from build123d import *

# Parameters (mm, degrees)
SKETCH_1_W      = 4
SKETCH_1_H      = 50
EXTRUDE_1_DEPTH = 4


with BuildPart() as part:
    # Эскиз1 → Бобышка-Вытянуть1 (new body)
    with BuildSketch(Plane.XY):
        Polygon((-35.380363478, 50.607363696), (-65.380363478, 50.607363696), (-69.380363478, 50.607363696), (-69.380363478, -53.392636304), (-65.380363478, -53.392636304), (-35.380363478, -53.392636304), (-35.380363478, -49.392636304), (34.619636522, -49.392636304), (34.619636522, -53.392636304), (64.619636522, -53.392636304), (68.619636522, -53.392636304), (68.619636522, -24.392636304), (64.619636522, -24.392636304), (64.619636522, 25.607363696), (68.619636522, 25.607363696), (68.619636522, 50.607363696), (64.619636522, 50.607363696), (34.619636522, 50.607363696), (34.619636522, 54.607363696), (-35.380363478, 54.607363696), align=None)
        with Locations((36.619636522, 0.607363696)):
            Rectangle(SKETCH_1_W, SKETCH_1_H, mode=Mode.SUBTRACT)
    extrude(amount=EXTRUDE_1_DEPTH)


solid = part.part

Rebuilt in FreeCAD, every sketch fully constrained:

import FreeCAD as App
import Part
import Sketcher


def add_polygon(sketch, points):
    """Adds a closed chain of lines whose ends are joined by coincident constraints."""
    first, n = sketch.GeometryCount, len(points)
    for a, b in zip(points, points[1:] + points[:1]):
        sketch.addGeometry(Part.LineSegment(App.Vector(*a, 0), App.Vector(*b, 0)), False)
    for i in range(n):
        sketch.addConstraint(Sketcher.Constraint("Coincident", first + i, 2, first + (i + 1) % n, 1))

doc = App.newDocument("Part")
params = doc.addObject("Spreadsheet::Sheet", "Params")
for row, (alias, value) in enumerate([
    ("sketch1_width", "34 mm"),
    ("sketch1_width2", "70 mm"),
    ("sketch1_width3", "4 mm"),
    ("sketch1_height", "104 mm"),
    ("sketch1_height2", "29 mm"),
    ("pad1_length", "4 mm"),
], start=1):
    params.set(f"A{row}", alias)
    params.set(f"B{row}", "=" + value)
    params.setAlias(f"B{row}", alias)

body = doc.addObject("PartDesign::Body", "Body")

# Sketch on XY plane
sketch1 = body.newObject("Sketcher::SketchObject", "Sketch")
sketch1.AttachmentSupport = (doc.getObject("XY_Plane"), [""])
sketch1.MapMode = "FlatFace"
add_polygon(sketch1, [(-35.380363, 50.607364), (-69.380363, 50.607364), (-69.380363, -53.392636), (-35.380363, -53.392636), (-35.380363, -49.392636), (34.619637, -49.392636), (34.619637, -53.392636), (68.619637, -53.392636), (68.619637, -24.392636), (64.619637, -24.392636), (64.619637, 25.607364), (68.619637, 25.607364), (68.619637, 50.607364), (34.619637, 50.607364), (34.619637, 54.607364), (-35.380363, 54.607364)])  # lines 0-15
add_polygon(sketch1, [(38.619637, -24.392636), (34.619637, -24.392636), (34.619637, 25.607364), (38.619637, 25.607364)])  # lines 16-19
sketch1.addConstraint(Sketcher.Constraint("Horizontal", 0))
sketch1.addConstraint(Sketcher.Constraint("Vertical", 1))
sketch1.addConstraint(Sketcher.Constraint("Horizontal", 2))
sketch1.addConstraint(Sketcher.Constraint("Vertical", 3))
sketch1.addConstraint(Sketcher.Constraint("Horizontal", 4))
sketch1.addConstraint(Sketcher.Constraint("Vertical", 5))
sketch1.addConstraint(Sketcher.Constraint("Horizontal", 6))
sketch1.addConstraint(Sketcher.Constraint("Vertical", 7))
sketch1.addConstraint(Sketcher.Constraint("Horizontal", 8))
sketch1.addConstraint(Sketcher.Constraint("Vertical", 9))
sketch1.addConstraint(Sketcher.Constraint("Horizontal", 10))
sketch1.addConstraint(Sketcher.Constraint("Vertical", 11))
sketch1.addConstraint(Sketcher.Constraint("Horizontal", 12))
sketch1.addConstraint(Sketcher.Constraint("Vertical", 13))
sketch1.addConstraint(Sketcher.Constraint("Horizontal", 14))
sketch1.addConstraint(Sketcher.Constraint("Vertical", 15))
sketch1.addConstraint(Sketcher.Constraint("Horizontal", 16))
sketch1.addConstraint(Sketcher.Constraint("Vertical", 17))
sketch1.addConstraint(Sketcher.Constraint("Horizontal", 18))
sketch1.addConstraint(Sketcher.Constraint("Vertical", 19))
sketch1.addConstraint(Sketcher.Constraint("Horizontal", 2, 2, 5, 2))
sketch1.addConstraint(Sketcher.Constraint("Horizontal", 0, 2, 11, 2))
sketch1.addConstraint(Sketcher.Constraint("Horizontal", 8, 2, 16, 2))
sketch1.addConstraint(Sketcher.Constraint("Horizontal", 10, 2, 17, 2))
sketch1.addConstraint(Sketcher.Constraint("Vertical", 7, 2, 10, 2))
sketch1.addConstraint(Sketcher.Constraint("Vertical", 5, 2, 12, 2))
sketch1.addConstraint(Sketcher.Constraint("Vertical", 3, 2, 14, 2))
sketch1.addConstraint(Sketcher.Constraint("Vertical", 13, 2, 16, 2))
sketch1.addConstraint(Sketcher.Constraint("Equal", 2, 6))
sketch1.addConstraint(Sketcher.Constraint("Equal", 10, 16))
sketch1.addConstraint(Sketcher.Constraint("Equal", 18, 3))
sketch1.addConstraint(Sketcher.Constraint("Equal", 5, 13))
sketch1.addConstraint(Sketcher.Constraint("DistanceX", 0, 2, 0, 1, 34.0))
sketch1.addConstraint(Sketcher.Constraint("DistanceX", 4, 1, 4, 2, 70.0))
sketch1.addConstraint(Sketcher.Constraint("DistanceX", 8, 2, 8, 1, 4.0))
sketch1.addConstraint(Sketcher.Constraint("DistanceY", 1, 2, 1, 1, 104.0))
sketch1.addConstraint(Sketcher.Constraint("DistanceY", 7, 1, 7, 2, 29.0))
sketch1.addConstraint(Sketcher.Constraint("DistanceY", 9, 1, 9, 2, 50.0))
sketch1.addConstraint(Sketcher.Constraint("DistanceX", 0, 2, -1, 1, 69.380363))
sketch1.addConstraint(Sketcher.Constraint("DistanceY", -1, 1, 0, 2, 50.607364))
sketch1.setExpression("Constraints[52]", "Params.sketch1_width")
sketch1.setExpression("Constraints[53]", "Params.sketch1_width2")
sketch1.setExpression("Constraints[54]", "Params.sketch1_width3")
sketch1.setExpression("Constraints[55]", "Params.sketch1_height")
sketch1.setExpression("Constraints[56]", "Params.sketch1_height2")
pad1 = body.newObject("PartDesign::Pad", "Pad")
pad1.Profile = sketch1
pad1.setExpression("Length", "Params.pad1_length")

doc.recompute()
